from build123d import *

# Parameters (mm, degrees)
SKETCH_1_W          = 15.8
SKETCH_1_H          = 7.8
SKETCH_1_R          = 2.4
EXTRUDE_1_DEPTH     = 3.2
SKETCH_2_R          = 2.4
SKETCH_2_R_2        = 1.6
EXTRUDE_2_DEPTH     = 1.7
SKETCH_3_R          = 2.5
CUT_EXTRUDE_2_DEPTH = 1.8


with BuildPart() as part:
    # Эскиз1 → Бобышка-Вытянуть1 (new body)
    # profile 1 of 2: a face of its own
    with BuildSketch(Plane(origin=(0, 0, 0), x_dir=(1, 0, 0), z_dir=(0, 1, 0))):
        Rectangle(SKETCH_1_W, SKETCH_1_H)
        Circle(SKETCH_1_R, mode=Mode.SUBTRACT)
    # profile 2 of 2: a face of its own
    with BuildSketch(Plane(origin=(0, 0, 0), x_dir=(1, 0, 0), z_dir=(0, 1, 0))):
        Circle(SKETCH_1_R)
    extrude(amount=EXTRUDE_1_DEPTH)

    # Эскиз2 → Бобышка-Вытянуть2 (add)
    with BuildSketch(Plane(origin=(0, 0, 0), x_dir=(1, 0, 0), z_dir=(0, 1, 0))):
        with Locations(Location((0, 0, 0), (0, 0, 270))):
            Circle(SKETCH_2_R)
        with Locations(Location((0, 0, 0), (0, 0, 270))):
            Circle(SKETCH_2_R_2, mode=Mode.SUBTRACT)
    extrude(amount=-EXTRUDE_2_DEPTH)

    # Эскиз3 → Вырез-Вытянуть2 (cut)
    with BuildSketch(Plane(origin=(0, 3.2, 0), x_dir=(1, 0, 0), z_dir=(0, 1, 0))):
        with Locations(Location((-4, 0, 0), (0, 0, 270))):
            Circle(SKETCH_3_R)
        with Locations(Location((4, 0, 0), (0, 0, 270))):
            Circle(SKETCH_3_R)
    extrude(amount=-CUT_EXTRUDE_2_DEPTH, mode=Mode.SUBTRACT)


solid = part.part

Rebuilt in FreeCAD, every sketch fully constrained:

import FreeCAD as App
import Part
import Sketcher

V = App.Vector


def add_polygon(sketch, points):
    """Adds a closed chain of lines whose ends are joined by coincident constraints."""
    first, n = sketch.GeometryCount, len(points)
    for a, b in zip(points, points[1:] + points[:1]):
        sketch.addGeometry(Part.LineSegment(App.Vector(*a, 0), App.Vector(*b, 0)), False)
    for i in range(n):
        sketch.addConstraint(Sketcher.Constraint("Coincident", first + i, 2, first + (i + 1) % n, 1))

doc = App.newDocument("Part")
body = doc.addObject("PartDesign::Body", "Body")

# Sketch on XZ plane
sketch1 = body.newObject("Sketcher::SketchObject", "Sketch")
sketch1.AttachmentSupport = (doc.getObject("XZ_Plane"), [""])
sketch1.MapMode = "FlatFace"
add_polygon(sketch1, [(-7.9, -3.9), (-7.9, 3.9), (7.9, 3.9), (7.9, -3.9)])  # lines 0-3
sketch1.addConstraint(Sketcher.Constraint("Vertical", 0))
sketch1.addConstraint(Sketcher.Constraint("Horizontal", 1))
sketch1.addConstraint(Sketcher.Constraint("Vertical", 2))
sketch1.addConstraint(Sketcher.Constraint("Horizontal", 3))
sketch1.addConstraint(Sketcher.Constraint("Symmetric", 0, 2, 2, 2, -1, 1))
sketch1.addConstraint(Sketcher.Constraint("DistanceX", 1, 1, 1, 2, 15.8))
sketch1.addConstraint(Sketcher.Constraint("DistanceY", 0, 1, 0, 2, 7.8))
pad1 = body.newObject("PartDesign::Pad", "Pad")
pad1.Profile = sketch1
pad1.Length = 3.2
pad1.Reversed = True

# Sketch on XZ plane
sketch2 = body.newObject("Sketcher::SketchObject", "Sketch001")
sketch2.AttachmentSupport = (doc.getObject("XZ_Plane"), [""])
sketch2.MapMode = "FlatFace"
sketch2.addGeometry(Part.Circle(V(0, 0, 0), V(0, 0, 1), 2.4), False)
sketch2.addGeometry(Part.Circle(V(0, 0, 0), V(0, 0, 1), 1.6), False)
sketch2.addConstraint(Sketcher.Constraint("Coincident", 0, 3, -1, 1))
sketch2.addConstraint(Sketcher.Constraint("Coincident", 1, 3, -1, 1))
sketch2.addConstraint(Sketcher.Constraint("Diameter", 0, 4.8))
sketch2.addConstraint(Sketcher.Constraint("Diameter", 1, 3.2))
pad2 = body.newObject("PartDesign::Pad", "Pad001")
pad2.Profile = sketch2
pad2.Length = 1.7

# Sketch on XZ plane
sketch3 = body.newObject("Sketcher::SketchObject", "Sketch002")
sketch3.AttachmentSupport = (doc.getObject("XZ_Plane"), [""])
sketch3.MapMode = "FlatFace"
sketch3.AttachmentOffset = App.Placement(V(0, 0, -3.2), App.Rotation())
sketch3.addGeometry(Part.Circle(V(-4, 0, 0), V(0, 0, 1), 2.5), False)
sketch3.addGeometry(Part.Circle(V(4, 0, 0), V(0, 0, 1), 2.5), False)
sketch3.addConstraint(Sketcher.Constraint("Equal", 0, 1))
sketch3.addConstraint(Sketcher.Constraint("Symmetric", 0, 3, 1, 3, -1, 1))
sketch3.addConstraint(Sketcher.Constraint("PointOnObject", 0, 3, -1))
sketch3.addConstraint(Sketcher.Constraint("Diameter", 0, 5.0))
sketch3.addConstraint(Sketcher.Constraint("DistanceX", 0, 3, -1, 1, 4.0))
pocket1 = body.newObject("PartDesign::Pocket", "Pocket")
pocket1.Profile = sketch3
pocket1.Length = 1.8
pocket1.Reversed = True

doc.recompute()
